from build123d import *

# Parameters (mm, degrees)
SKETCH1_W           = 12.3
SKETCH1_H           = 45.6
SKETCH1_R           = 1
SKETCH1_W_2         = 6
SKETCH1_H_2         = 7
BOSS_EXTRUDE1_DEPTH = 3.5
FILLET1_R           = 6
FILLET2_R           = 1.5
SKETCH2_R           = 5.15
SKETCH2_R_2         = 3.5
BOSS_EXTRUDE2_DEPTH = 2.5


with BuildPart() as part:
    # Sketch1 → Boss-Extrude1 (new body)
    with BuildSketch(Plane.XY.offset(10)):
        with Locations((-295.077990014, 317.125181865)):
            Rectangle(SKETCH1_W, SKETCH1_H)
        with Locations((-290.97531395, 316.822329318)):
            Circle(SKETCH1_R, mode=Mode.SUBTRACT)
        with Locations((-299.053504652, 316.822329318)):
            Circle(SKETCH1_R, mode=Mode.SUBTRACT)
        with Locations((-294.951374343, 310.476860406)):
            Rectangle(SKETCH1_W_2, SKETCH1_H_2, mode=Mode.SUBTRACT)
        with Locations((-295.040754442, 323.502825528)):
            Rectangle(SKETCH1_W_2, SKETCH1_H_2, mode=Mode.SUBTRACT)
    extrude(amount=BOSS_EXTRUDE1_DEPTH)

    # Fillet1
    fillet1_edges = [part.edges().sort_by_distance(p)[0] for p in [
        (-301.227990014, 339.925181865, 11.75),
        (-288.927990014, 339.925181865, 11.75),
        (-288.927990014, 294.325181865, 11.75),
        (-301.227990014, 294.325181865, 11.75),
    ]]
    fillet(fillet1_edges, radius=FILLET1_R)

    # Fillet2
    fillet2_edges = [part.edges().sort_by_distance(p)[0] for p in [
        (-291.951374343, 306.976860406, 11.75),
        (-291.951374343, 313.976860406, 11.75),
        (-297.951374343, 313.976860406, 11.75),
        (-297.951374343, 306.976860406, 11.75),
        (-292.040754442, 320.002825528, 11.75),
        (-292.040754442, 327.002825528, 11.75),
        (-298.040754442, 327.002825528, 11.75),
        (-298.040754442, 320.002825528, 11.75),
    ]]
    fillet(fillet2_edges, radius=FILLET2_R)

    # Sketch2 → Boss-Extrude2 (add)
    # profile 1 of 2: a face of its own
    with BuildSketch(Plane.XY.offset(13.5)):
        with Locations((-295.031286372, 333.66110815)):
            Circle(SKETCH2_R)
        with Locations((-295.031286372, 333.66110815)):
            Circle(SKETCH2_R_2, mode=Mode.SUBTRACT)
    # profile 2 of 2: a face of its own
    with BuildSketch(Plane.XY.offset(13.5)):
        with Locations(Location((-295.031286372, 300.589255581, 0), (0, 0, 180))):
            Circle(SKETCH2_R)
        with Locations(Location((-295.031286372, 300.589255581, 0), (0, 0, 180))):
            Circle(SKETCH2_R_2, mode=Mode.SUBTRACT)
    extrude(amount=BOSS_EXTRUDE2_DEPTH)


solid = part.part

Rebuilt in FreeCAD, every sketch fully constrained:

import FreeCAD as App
import Part
import Sketcher

V = App.Vector
Q = App.Units.Quantity


def edges_at(feature, points):
    """Names of the edges that pass closest to the given points."""
    edges = feature.Shape.Edges
    near = lambda p: min(range(len(edges)), key=lambda i: edges[i].distToShape(Part.Vertex(*p))[0])
    return sorted({f"Edge{near(p) + 1}" for p in points})


def add_polygon(sketch, points):
    """Adds a closed chain of lines whose ends are joined by coincident constraints."""
    first, n = sketch.GeometryCount, len(points)
    for a, b in zip(points, points[1:] + points[:1]):
        sketch.addGeometry(Part.LineSegment(App.Vector(*a, 0), App.Vector(*b, 0)), False)
    for i in range(n):
        sketch.addConstraint(Sketcher.Constraint("Coincident", first + i, 2, first + (i + 1) % n, 1))

doc = App.newDocument("Part")
body = doc.addObject("PartDesign::Body", "Body")

sketch1 = body.newObject("Sketcher::SketchObject", "Sketch")
sketch1.AttachmentSupport = (doc.getObject("XY_Plane"), [""])
sketch1.MapMode = "FlatFace"
sketch1.AttachmentOffset = App.Placement(V(0, 0, 10), App.Rotation())
add_polygon(sketch1, [(-301.2, 339.9), (-301.2, 294.3), (-288.9, 294.3), (-288.9, 339.9)])
sketch1.addGeometry(Part.Circle(V(-299.1, 316.8, 0), V(0, 0, 1), 1), False)
add_polygon(sketch1, [(-292, 307), (-298, 307), (-298, 314), (-292, 314)])
sketch1.addGeometry(Part.Circle(V(-291, 316.8, 0), V(0, 0, 1), 1), False)
add_polygon(sketch1, [(-292, 320), (-298, 320), (-298, 327), (-292, 327)])
sketch1.addConstraint([
    Sketcher.Constraint("Vertical", 0),
    Sketcher.Constraint("Horizontal", 1),
    Sketcher.Constraint("Vertical", 2),
    Sketcher.Constraint("Horizontal", 3),
    Sketcher.Constraint("Horizontal", 5),
    Sketcher.Constraint("Vertical", 6),
    Sketcher.Constraint("Horizontal", 7),
    Sketcher.Constraint("Vertical", 8),
    Sketcher.Constraint("Horizontal", 10),
    Sketcher.Constraint("Vertical", 11),
    Sketcher.Constraint("Horizontal", 12),
    Sketcher.Constraint("Vertical", 13),
    Sketcher.Constraint("Equal", 4, 9),
    Sketcher.Constraint("Horizontal", 4, 3, 9, 3),
    Sketcher.Constraint("Equal", 7, 10),
    Sketcher.Constraint("Equal", 8, 11),
    Sketcher.Constraint("Diameter", 4, Q("2 mm")),
    Sketcher.Constraint("DistanceX", 5, 2, 5, 1, Q("6 mm")),
    Sketcher.Constraint("DistanceY", 6, 1, 6, 2, Q("7 mm")),
    Sketcher.Constraint("DistanceX", 1, 1, 1, 2, Q("12.3 mm")),
    Sketcher.Constraint("DistanceY", 0, 2, 0, 1, Q("45.6 mm")),
    Sketcher.Constraint("DistanceY", -1, 1, 4, 3, Q("316.822329 mm")),
    Sketcher.Constraint("DistanceX", 0, 2, -1, 1, Q("301.22799 mm")),
    Sketcher.Constraint("DistanceY", -1, 1, 0, 2, Q("294.325182 mm")),
    Sketcher.Constraint("DistanceY", -1, 1, 5, 2, Q("306.97686 mm")),
    Sketcher.Constraint("DistanceX", 4, 3, 9, 3, Q("8.078191 mm")),
    Sketcher.Constraint("DistanceX", 4, 3, 5, 2, Q("1.10213 mm")),
    Sketcher.Constraint("DistanceX", 4, 3, 10, 2, Q("1.01275 mm")),
    Sketcher.Constraint("DistanceX", 4, 3, -1, 1, Q("299.053505 mm")),
    Sketcher.Constraint("DistanceY", -1, 1, 10, 2, Q("320.002826 mm")),
])
pad1 = body.newObject("PartDesign::Pad", "Pad")
pad1.Profile = sketch1
pad1.Length = 3.5
doc.recompute()

fillet = body.newObject("PartDesign::Fillet", "Fillet")
fillet.Base = (pad1, edges_at(pad1, [
    (-301.228, 339.925, 11.75),
    (-288.928, 339.925, 11.75),
    (-288.928, 294.325, 11.75),
    (-301.228, 294.325, 11.75),
]))
fillet.Radius = 6
doc.recompute()

fillet2 = body.newObject("PartDesign::Fillet", "Fillet001")
fillet2.Base = (fillet, edges_at(fillet, [
    (-291.951, 306.977, 11.75),
    (-291.951, 313.977, 11.75),
    (-297.951, 313.977, 11.75),
    (-297.951, 306.977, 11.75),
    (-292.041, 320.003, 11.75),
    (-292.041, 327.003, 11.75),
    (-298.041, 327.003, 11.75),
    (-298.041, 320.003, 11.75),
]))
fillet2.Radius = 1.5

sketch2 = body.newObject("Sketcher::SketchObject", "Sketch001")
sketch2.AttachmentSupport = (doc.getObject("XY_Plane"), [""])
sketch2.MapMode = "FlatFace"
sketch2.AttachmentOffset = App.Placement(V(0, 0, 13.5), App.Rotation())
sketch2.addGeometry([
    Part.Circle(V(-295, 333.7, 0), V(0, 0, 1), 5.2),
    Part.Circle(V(-295, 333.7, 0), V(0, 0, 1), 3.5),
    Part.Circle(V(-295, 300.6, 0), V(0, 0, 1), 5.2),
    Part.Circle(V(-295, 300.6, 0), V(0, 0, 1), 3.5),
], False)
sketch2.addConstraint([
    Sketcher.Constraint("Coincident", 1, 3, 0, 3),
    Sketcher.Constraint("Coincident", 3, 3, 2, 3),
    Sketcher.Constraint("Equal", 0, 2),
    Sketcher.Constraint("Equal", 1, 3),
    Sketcher.Constraint("Vertical", 1, 3, 2, 3),
    Sketcher.Constraint("Diameter", 1, Q("7 mm")),
    Sketcher.Constraint("Diameter", 0, Q("10.3 mm")),
    Sketcher.Constraint("DistanceY", -1, 1, 0, 3, Q("333.661108 mm")),
    Sketcher.Constraint("DistanceX", 0, 3, -1, 1, Q("295.031286 mm")),
    Sketcher.Constraint("DistanceY", -1, 1, 2, 3, Q("300.589256 mm")),
])
pad2 = body.newObject("PartDesign::Pad", "Pad001")
pad2.Profile = sketch2
pad2.Length = 2.5

doc.recompute()
